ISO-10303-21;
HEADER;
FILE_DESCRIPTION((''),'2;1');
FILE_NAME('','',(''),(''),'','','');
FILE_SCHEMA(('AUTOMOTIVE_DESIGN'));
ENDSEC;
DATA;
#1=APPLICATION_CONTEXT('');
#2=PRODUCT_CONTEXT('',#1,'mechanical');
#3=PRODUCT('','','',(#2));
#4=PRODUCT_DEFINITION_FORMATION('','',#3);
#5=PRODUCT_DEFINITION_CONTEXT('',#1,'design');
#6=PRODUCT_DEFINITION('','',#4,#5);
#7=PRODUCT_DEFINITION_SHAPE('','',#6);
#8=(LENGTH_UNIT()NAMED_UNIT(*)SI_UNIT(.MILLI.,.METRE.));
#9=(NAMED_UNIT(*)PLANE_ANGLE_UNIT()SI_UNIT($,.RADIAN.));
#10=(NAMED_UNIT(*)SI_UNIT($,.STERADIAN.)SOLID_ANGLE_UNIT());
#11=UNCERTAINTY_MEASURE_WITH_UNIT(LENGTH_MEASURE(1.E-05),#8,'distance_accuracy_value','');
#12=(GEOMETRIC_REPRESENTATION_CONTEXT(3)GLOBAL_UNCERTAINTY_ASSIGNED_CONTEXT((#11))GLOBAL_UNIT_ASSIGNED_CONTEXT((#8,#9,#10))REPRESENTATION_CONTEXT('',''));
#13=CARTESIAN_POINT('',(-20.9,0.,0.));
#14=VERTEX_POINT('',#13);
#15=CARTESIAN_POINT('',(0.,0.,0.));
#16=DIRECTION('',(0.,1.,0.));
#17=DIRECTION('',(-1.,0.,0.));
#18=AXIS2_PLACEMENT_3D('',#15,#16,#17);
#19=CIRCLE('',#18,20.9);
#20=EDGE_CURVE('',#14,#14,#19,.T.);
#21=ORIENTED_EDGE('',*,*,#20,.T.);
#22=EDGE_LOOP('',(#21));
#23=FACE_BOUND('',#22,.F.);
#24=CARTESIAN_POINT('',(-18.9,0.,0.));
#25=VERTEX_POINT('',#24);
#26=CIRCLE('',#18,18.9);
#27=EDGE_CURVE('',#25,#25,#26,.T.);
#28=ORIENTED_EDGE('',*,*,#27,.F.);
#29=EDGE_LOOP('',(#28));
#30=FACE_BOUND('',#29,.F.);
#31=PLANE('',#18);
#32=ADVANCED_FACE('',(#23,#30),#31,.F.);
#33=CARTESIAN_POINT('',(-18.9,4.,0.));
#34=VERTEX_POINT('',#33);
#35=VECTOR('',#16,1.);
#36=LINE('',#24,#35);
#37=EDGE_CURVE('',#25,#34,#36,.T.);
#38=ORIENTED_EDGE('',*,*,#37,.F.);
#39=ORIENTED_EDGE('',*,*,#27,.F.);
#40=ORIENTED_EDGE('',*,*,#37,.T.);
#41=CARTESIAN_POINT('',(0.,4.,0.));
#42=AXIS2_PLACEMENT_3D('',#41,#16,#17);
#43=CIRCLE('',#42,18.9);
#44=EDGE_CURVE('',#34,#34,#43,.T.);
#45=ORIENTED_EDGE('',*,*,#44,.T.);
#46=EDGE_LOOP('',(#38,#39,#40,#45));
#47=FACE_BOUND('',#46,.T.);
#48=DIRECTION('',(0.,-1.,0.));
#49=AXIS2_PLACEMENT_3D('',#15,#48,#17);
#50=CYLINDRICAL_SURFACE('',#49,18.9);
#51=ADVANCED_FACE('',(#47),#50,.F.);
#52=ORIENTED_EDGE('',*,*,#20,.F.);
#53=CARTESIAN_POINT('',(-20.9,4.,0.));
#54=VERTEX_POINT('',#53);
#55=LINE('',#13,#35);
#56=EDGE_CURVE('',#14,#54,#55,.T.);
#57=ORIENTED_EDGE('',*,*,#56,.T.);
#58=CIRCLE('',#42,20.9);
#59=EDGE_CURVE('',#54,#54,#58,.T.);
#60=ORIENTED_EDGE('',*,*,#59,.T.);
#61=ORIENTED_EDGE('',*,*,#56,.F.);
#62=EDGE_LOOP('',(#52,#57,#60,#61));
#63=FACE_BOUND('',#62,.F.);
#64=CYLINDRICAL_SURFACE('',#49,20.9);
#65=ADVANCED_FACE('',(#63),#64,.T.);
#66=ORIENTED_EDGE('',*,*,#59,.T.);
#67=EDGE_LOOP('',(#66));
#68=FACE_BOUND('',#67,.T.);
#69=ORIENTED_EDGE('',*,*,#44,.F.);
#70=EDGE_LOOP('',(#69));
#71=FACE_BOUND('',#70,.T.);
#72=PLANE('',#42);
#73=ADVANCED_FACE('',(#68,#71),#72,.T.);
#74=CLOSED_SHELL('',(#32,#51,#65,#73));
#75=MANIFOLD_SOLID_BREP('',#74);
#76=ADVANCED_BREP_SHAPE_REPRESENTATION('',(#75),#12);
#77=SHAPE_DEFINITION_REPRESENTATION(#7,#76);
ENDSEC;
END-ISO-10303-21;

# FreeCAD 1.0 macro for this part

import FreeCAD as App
import Part
import Sketcher

V = App.Vector

doc = App.newDocument("Part")
params = doc.addObject("Spreadsheet::Sheet", "Params")
for row, (alias, value) in enumerate([
    ("sketch1_diameter", "41.8 mm"),
    ("sketch1_diameter2", "37.8 mm"),
    ("pad1_length", "4 mm"),
], start=1):
    params.set(f"A{row}", alias)
    params.set(f"B{row}", "=" + value)
    params.setAlias(f"B{row}", alias)

body = doc.addObject("PartDesign::Body", "Body")

# Sketch on XZ plane
sketch1 = doc.addObject("Sketcher::SketchObject", "Sketch")
body.addObject(sketch1)
sketch1.AttachmentSupport = (doc.XZ_Plane, [""])
sketch1.MapMode = "FlatFace"
sketch1.addGeometry([
    Part.Circle(V(0, 0, 0), V(0, 0, 1), 21),
    Part.Circle(V(0, 0, 0), V(0, 0, 1), 19),
], False)
sketch1.addConstraint([
    Sketcher.Constraint("Coincident", 0, 3, -1, 1),
    Sketcher.Constraint("Coincident", 1, 3, -1, 1),
    Sketcher.Constraint("Diameter", 0, 41.8),
    Sketcher.Constraint("Diameter", 1, 37.8),
])
sketch1.setExpression("Constraints[2]", "Params.sketch1_diameter")
sketch1.setExpression("Constraints[3]", "Params.sketch1_diameter2")
pad1 = doc.addObject("PartDesign::Pad", "Pad")
body.addObject(pad1)
pad1.Profile = sketch1
pad1.setExpression("Length", "Params.pad1_length")
pad1.Reversed = True

doc.recompute()
